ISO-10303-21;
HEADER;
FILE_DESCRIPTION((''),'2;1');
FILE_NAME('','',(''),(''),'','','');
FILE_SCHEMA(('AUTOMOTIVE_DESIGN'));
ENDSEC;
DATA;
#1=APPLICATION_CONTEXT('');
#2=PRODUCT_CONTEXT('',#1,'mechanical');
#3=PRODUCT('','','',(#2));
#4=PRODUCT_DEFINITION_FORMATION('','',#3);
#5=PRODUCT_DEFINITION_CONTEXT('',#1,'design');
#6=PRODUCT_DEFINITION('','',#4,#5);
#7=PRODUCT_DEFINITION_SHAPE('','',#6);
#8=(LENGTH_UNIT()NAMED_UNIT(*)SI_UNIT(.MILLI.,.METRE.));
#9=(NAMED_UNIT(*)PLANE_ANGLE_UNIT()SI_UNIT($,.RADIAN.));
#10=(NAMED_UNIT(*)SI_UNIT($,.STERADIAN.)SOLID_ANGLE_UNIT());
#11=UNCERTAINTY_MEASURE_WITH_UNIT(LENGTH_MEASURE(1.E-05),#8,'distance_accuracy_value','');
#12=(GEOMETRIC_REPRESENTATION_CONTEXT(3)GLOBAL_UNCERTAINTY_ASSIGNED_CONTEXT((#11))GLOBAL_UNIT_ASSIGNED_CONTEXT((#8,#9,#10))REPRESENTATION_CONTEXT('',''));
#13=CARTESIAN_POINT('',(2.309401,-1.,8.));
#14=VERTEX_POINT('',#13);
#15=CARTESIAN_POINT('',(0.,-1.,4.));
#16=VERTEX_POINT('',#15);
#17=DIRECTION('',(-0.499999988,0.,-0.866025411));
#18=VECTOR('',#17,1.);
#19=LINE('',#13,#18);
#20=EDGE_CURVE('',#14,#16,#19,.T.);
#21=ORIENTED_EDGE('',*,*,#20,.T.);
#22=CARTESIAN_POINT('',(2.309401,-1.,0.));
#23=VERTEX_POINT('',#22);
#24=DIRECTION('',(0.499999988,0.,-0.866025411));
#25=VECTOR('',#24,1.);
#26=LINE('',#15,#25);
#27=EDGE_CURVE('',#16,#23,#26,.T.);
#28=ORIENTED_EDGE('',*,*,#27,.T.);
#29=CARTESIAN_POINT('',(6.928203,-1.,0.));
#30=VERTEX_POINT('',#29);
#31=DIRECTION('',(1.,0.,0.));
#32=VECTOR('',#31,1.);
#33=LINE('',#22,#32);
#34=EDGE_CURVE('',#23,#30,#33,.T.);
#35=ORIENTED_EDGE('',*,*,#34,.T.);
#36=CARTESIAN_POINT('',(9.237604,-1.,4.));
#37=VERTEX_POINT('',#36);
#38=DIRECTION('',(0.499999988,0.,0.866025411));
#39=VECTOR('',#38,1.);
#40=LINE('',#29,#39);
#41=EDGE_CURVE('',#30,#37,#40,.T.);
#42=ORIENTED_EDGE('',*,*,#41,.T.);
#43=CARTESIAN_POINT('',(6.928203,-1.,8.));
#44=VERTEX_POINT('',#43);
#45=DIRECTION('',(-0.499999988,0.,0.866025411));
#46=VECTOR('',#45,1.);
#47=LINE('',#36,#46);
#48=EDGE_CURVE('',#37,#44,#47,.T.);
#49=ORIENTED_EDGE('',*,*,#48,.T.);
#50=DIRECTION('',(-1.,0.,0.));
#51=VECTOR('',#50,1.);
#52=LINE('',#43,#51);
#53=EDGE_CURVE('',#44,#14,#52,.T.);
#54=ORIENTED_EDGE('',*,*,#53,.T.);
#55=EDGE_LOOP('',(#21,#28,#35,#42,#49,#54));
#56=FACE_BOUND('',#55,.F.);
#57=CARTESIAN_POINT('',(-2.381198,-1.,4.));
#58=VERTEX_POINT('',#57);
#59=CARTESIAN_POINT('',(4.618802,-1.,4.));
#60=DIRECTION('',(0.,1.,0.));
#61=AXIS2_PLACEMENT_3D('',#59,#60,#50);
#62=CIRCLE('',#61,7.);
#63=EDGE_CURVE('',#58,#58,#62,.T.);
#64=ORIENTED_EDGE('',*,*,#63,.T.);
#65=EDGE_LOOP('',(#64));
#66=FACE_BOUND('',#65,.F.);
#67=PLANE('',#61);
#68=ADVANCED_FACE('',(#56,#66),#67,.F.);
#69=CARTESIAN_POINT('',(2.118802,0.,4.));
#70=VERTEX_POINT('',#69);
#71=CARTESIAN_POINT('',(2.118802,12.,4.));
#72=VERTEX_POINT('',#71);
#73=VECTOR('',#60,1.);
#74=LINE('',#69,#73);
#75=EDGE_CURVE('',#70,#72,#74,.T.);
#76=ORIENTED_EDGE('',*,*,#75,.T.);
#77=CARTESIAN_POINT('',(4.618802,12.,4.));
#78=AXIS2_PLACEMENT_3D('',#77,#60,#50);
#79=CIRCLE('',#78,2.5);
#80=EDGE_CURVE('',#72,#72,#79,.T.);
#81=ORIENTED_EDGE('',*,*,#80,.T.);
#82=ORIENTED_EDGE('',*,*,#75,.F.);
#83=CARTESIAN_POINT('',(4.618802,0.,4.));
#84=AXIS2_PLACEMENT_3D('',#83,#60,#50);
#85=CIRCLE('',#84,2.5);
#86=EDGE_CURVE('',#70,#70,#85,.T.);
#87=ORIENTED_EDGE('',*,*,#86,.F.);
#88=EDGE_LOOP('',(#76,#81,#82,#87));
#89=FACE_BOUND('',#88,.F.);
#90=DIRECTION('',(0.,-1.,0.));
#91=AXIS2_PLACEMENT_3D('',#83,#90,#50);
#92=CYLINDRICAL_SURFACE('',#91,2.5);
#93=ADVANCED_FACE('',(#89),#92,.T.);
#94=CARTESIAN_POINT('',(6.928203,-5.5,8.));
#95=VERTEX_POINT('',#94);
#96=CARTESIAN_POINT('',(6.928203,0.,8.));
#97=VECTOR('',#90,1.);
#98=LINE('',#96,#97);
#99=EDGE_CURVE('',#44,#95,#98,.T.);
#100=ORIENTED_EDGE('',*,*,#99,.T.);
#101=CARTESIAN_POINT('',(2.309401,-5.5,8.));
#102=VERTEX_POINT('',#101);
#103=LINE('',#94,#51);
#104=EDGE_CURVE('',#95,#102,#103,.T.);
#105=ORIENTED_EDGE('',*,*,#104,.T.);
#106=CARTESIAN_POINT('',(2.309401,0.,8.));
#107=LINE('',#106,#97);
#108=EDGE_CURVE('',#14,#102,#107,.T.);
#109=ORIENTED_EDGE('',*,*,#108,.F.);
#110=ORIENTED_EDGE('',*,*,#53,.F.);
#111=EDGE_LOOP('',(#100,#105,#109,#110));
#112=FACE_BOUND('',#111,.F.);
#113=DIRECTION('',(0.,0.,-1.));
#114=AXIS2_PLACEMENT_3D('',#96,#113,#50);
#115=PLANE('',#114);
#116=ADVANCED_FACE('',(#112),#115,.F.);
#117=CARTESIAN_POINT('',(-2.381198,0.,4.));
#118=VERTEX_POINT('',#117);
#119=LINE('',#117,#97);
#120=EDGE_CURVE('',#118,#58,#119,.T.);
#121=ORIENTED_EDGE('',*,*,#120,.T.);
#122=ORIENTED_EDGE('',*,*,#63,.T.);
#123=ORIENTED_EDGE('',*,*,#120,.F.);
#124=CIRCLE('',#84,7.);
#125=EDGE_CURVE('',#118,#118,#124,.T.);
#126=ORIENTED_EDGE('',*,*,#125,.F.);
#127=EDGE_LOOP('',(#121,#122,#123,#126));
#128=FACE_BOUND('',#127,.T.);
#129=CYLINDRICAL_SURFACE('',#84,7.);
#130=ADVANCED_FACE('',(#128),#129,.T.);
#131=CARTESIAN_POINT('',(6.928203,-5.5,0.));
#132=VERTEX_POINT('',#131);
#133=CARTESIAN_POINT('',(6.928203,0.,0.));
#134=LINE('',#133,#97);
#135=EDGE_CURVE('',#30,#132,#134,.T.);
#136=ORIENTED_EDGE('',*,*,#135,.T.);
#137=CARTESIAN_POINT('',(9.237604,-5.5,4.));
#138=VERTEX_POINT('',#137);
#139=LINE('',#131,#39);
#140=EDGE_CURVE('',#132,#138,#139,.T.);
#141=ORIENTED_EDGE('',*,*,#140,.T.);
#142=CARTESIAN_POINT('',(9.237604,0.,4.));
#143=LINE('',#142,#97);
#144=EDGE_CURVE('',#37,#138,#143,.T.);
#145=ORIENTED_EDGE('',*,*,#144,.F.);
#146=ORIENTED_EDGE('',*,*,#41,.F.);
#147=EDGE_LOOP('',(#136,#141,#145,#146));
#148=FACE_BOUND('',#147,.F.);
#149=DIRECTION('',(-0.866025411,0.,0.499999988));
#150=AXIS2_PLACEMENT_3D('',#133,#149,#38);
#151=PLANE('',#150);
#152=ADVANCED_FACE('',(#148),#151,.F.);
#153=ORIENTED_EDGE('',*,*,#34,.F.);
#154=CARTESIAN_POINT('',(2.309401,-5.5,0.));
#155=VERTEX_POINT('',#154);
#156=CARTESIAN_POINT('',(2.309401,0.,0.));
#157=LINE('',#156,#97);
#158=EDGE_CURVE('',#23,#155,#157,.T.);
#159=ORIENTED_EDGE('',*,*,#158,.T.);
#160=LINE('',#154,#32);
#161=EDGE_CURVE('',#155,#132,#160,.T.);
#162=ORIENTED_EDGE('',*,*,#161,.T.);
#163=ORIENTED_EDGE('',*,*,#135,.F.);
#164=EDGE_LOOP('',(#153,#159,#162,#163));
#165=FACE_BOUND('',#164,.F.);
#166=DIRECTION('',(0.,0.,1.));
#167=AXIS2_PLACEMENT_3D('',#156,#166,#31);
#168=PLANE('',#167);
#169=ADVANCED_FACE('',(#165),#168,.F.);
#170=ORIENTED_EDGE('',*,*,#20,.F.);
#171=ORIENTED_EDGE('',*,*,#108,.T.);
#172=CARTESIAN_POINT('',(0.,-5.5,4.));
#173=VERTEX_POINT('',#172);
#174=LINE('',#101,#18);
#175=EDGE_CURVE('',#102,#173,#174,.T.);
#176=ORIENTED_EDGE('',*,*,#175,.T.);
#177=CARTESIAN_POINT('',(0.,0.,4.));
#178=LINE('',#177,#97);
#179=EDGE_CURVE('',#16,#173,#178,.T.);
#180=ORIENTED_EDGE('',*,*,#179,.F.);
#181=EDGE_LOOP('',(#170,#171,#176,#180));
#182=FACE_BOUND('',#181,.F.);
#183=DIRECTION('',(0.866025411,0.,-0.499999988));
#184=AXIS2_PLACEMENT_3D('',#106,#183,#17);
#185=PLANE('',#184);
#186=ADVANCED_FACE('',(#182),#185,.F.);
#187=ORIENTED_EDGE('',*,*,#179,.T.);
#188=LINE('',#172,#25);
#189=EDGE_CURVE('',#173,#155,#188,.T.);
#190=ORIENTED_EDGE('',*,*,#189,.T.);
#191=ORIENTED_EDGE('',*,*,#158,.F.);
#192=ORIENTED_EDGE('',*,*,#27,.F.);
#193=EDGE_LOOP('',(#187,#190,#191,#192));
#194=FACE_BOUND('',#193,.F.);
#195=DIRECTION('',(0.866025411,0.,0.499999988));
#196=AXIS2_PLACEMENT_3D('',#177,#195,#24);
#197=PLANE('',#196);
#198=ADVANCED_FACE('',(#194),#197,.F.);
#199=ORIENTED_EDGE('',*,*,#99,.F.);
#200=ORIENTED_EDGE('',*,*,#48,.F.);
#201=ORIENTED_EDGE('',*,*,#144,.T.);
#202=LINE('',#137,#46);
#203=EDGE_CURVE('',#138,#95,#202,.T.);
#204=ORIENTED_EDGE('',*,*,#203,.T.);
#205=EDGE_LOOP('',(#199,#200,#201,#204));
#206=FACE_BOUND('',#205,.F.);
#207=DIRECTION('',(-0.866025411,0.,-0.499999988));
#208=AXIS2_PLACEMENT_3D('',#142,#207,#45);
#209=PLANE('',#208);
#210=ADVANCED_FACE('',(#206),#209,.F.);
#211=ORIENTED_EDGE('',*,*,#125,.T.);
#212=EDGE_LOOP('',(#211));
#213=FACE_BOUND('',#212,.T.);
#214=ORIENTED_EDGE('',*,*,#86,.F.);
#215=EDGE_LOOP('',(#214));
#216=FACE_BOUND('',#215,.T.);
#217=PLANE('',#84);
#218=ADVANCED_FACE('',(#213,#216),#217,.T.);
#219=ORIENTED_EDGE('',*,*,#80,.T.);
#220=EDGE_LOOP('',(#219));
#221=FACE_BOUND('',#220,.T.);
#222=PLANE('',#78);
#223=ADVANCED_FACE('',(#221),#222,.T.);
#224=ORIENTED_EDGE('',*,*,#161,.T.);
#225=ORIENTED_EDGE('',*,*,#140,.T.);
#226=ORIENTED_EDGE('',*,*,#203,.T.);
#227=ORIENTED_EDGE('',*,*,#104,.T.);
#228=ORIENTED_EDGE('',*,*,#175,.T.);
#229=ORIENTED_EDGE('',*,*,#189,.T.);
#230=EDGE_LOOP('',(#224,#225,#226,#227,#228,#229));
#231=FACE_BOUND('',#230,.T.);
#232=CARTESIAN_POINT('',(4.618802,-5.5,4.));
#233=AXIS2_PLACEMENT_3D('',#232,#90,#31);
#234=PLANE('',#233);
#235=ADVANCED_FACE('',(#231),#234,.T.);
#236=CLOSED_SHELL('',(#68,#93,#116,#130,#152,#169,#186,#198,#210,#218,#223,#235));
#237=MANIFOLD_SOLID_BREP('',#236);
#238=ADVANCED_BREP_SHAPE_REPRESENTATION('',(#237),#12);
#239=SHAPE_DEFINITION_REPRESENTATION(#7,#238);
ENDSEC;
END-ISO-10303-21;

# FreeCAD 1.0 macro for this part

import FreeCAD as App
import Part
import Sketcher

V = App.Vector
Q = App.Units.Quantity

doc = App.newDocument("Part")
body = doc.addObject("PartDesign::Body", "Body")

sketch1 = body.newObject("Sketcher::SketchObject", "Sketch")
sketch1.AttachmentSupport = (doc.getObject("XZ_Plane"), [""])
sketch1.MapMode = "FlatFace"
sketch1.addGeometry([
    Part.LineSegment(V(0, 4, 0), V(2.3, 0, 0)),
    Part.LineSegment(V(2.3, 0, 0), V(6.9, 0, 0)),
    Part.LineSegment(V(6.9, 0, 0), V(9.2, 4, 0)),
    Part.LineSegment(V(9.2, 4, 0), V(6.9, 8, 0)),
    Part.LineSegment(V(6.9, 8, 0), V(2.3, 8, 0)),
    Part.LineSegment(V(2.3, 8, 0), V(0, 4, 0)),
], False)
sketch1.addConstraint([
    Sketcher.Constraint("Coincident", 0, 2, 1, 1),
    Sketcher.Constraint("Coincident", 1, 2, 2, 1),
    Sketcher.Constraint("Coincident", 2, 2, 3, 1),
    Sketcher.Constraint("Coincident", 3, 2, 4, 1),
    Sketcher.Constraint("Coincident", 4, 2, 5, 1),
    Sketcher.Constraint("Coincident", 5, 2, 0, 1),
    Sketcher.Constraint("Horizontal", 1),
    Sketcher.Constraint("Horizontal", 4),
    Sketcher.Constraint("PointOnObject", 0, 2, -1),
    Sketcher.Constraint("PointOnObject", 5, 2, -2),
    Sketcher.Constraint("Parallel", 0, 3),
    Sketcher.Constraint("Parallel", 2, 5),
    Sketcher.Constraint("Horizontal", 2, 2, 5, 2),
    Sketcher.Constraint("Vertical", 1, 2, 3, 2),
    Sketcher.Constraint("Vertical", 0, 2, 4, 2),
    Sketcher.Constraint("Angle", 0, Q("-60.000001 deg")),
    Sketcher.Constraint("DistanceY", -1, 1, 2, 2, Q("4 mm")),
    Sketcher.Constraint("DistanceX", 1, 1, 1, 2, Q("4.618802 mm")),
])
pad1 = body.newObject("PartDesign::Pad", "Pad")
pad1.Profile = sketch1
pad1.Length = 5.5

sketch2 = body.newObject("Sketcher::SketchObject", "Sketch001")
sketch2.AttachmentSupport = (doc.getObject("XZ_Plane"), [""])
sketch2.MapMode = "FlatFace"
sketch2.addGeometry([
    Part.Circle(V(4.6, 4, 0), V(0, 0, 1), 7),
    Part.LineSegment(V(6.9, 8, 0), V(2.3, 8, 0)),
    Part.LineSegment(V(2.3, 8, 0), V(0, 4, 0)),
    Part.LineSegment(V(0, 4, 0), V(2.3, 0, 0)),
    Part.LineSegment(V(2.3, 0, 0), V(6.9, 0, 0)),
    Part.LineSegment(V(6.9, 0, 0), V(9.2, 4, 0)),
    Part.LineSegment(V(9.2, 4, 0), V(6.9, 8, 0)),
], False)
sketch2.addConstraint([
    Sketcher.Constraint("Coincident", 1, 2, 2, 1),
    Sketcher.Constraint("Coincident", 2, 2, 3, 1),
    Sketcher.Constraint("Coincident", 3, 2, 4, 1),
    Sketcher.Constraint("Coincident", 4, 2, 5, 1),
    Sketcher.Constraint("Coincident", 5, 2, 6, 1),
    Sketcher.Constraint("Coincident", 6, 2, 1, 1),
    Sketcher.Constraint("Horizontal", 1),
    Sketcher.Constraint("Horizontal", 4),
    Sketcher.Constraint("PointOnObject", 2, 2, -2),
    Sketcher.Constraint("PointOnObject", 3, 2, -1),
    Sketcher.Constraint("Parallel", 2, 5),
    Sketcher.Constraint("Parallel", 3, 6),
    Sketcher.Constraint("Horizontal", 0, 3, 2, 2),
    Sketcher.Constraint("Horizontal", 2, 2, 5, 2),
    Sketcher.Constraint("Vertical", 1, 2, 3, 2),
    Sketcher.Constraint("Vertical", 4, 2, 6, 2),
    Sketcher.Constraint("Diameter", 0, Q("14 mm")),
    Sketcher.Constraint("Angle", 2, Q("-119.999999 deg")),
    Sketcher.Constraint("DistanceY", -1, 1, 0, 3, Q("4 mm")),
    Sketcher.Constraint("DistanceX", -1, 1, 0, 3, Q("4.618802 mm")),
    Sketcher.Constraint("DistanceX", 0, 3, 4, 2, Q("2.309401 mm")),
])
pad2 = body.newObject("PartDesign::Pad", "Pad001")
pad2.Profile = sketch2
pad2.Length = 1

sketch3 = body.newObject("Sketcher::SketchObject", "Sketch002")
sketch3.AttachmentSupport = (doc.getObject("XZ_Plane"), [""])
sketch3.MapMode = "FlatFace"
sketch3.addGeometry(Part.Circle(V(4.6, 4, 0), V(0, 0, 1), 2.5), False)
sketch3.addConstraint([
    Sketcher.Constraint("Diameter", 0, Q("5 mm")),
    Sketcher.Constraint("DistanceY", -1, 1, 0, 3, Q("4 mm")),
    Sketcher.Constraint("DistanceX", -1, 1, 0, 3, Q("4.618802 mm")),
])
pad3 = body.newObject("PartDesign::Pad", "Pad002")
pad3.Profile = sketch3
pad3.Length = 12
pad3.Reversed = True

doc.recompute()
